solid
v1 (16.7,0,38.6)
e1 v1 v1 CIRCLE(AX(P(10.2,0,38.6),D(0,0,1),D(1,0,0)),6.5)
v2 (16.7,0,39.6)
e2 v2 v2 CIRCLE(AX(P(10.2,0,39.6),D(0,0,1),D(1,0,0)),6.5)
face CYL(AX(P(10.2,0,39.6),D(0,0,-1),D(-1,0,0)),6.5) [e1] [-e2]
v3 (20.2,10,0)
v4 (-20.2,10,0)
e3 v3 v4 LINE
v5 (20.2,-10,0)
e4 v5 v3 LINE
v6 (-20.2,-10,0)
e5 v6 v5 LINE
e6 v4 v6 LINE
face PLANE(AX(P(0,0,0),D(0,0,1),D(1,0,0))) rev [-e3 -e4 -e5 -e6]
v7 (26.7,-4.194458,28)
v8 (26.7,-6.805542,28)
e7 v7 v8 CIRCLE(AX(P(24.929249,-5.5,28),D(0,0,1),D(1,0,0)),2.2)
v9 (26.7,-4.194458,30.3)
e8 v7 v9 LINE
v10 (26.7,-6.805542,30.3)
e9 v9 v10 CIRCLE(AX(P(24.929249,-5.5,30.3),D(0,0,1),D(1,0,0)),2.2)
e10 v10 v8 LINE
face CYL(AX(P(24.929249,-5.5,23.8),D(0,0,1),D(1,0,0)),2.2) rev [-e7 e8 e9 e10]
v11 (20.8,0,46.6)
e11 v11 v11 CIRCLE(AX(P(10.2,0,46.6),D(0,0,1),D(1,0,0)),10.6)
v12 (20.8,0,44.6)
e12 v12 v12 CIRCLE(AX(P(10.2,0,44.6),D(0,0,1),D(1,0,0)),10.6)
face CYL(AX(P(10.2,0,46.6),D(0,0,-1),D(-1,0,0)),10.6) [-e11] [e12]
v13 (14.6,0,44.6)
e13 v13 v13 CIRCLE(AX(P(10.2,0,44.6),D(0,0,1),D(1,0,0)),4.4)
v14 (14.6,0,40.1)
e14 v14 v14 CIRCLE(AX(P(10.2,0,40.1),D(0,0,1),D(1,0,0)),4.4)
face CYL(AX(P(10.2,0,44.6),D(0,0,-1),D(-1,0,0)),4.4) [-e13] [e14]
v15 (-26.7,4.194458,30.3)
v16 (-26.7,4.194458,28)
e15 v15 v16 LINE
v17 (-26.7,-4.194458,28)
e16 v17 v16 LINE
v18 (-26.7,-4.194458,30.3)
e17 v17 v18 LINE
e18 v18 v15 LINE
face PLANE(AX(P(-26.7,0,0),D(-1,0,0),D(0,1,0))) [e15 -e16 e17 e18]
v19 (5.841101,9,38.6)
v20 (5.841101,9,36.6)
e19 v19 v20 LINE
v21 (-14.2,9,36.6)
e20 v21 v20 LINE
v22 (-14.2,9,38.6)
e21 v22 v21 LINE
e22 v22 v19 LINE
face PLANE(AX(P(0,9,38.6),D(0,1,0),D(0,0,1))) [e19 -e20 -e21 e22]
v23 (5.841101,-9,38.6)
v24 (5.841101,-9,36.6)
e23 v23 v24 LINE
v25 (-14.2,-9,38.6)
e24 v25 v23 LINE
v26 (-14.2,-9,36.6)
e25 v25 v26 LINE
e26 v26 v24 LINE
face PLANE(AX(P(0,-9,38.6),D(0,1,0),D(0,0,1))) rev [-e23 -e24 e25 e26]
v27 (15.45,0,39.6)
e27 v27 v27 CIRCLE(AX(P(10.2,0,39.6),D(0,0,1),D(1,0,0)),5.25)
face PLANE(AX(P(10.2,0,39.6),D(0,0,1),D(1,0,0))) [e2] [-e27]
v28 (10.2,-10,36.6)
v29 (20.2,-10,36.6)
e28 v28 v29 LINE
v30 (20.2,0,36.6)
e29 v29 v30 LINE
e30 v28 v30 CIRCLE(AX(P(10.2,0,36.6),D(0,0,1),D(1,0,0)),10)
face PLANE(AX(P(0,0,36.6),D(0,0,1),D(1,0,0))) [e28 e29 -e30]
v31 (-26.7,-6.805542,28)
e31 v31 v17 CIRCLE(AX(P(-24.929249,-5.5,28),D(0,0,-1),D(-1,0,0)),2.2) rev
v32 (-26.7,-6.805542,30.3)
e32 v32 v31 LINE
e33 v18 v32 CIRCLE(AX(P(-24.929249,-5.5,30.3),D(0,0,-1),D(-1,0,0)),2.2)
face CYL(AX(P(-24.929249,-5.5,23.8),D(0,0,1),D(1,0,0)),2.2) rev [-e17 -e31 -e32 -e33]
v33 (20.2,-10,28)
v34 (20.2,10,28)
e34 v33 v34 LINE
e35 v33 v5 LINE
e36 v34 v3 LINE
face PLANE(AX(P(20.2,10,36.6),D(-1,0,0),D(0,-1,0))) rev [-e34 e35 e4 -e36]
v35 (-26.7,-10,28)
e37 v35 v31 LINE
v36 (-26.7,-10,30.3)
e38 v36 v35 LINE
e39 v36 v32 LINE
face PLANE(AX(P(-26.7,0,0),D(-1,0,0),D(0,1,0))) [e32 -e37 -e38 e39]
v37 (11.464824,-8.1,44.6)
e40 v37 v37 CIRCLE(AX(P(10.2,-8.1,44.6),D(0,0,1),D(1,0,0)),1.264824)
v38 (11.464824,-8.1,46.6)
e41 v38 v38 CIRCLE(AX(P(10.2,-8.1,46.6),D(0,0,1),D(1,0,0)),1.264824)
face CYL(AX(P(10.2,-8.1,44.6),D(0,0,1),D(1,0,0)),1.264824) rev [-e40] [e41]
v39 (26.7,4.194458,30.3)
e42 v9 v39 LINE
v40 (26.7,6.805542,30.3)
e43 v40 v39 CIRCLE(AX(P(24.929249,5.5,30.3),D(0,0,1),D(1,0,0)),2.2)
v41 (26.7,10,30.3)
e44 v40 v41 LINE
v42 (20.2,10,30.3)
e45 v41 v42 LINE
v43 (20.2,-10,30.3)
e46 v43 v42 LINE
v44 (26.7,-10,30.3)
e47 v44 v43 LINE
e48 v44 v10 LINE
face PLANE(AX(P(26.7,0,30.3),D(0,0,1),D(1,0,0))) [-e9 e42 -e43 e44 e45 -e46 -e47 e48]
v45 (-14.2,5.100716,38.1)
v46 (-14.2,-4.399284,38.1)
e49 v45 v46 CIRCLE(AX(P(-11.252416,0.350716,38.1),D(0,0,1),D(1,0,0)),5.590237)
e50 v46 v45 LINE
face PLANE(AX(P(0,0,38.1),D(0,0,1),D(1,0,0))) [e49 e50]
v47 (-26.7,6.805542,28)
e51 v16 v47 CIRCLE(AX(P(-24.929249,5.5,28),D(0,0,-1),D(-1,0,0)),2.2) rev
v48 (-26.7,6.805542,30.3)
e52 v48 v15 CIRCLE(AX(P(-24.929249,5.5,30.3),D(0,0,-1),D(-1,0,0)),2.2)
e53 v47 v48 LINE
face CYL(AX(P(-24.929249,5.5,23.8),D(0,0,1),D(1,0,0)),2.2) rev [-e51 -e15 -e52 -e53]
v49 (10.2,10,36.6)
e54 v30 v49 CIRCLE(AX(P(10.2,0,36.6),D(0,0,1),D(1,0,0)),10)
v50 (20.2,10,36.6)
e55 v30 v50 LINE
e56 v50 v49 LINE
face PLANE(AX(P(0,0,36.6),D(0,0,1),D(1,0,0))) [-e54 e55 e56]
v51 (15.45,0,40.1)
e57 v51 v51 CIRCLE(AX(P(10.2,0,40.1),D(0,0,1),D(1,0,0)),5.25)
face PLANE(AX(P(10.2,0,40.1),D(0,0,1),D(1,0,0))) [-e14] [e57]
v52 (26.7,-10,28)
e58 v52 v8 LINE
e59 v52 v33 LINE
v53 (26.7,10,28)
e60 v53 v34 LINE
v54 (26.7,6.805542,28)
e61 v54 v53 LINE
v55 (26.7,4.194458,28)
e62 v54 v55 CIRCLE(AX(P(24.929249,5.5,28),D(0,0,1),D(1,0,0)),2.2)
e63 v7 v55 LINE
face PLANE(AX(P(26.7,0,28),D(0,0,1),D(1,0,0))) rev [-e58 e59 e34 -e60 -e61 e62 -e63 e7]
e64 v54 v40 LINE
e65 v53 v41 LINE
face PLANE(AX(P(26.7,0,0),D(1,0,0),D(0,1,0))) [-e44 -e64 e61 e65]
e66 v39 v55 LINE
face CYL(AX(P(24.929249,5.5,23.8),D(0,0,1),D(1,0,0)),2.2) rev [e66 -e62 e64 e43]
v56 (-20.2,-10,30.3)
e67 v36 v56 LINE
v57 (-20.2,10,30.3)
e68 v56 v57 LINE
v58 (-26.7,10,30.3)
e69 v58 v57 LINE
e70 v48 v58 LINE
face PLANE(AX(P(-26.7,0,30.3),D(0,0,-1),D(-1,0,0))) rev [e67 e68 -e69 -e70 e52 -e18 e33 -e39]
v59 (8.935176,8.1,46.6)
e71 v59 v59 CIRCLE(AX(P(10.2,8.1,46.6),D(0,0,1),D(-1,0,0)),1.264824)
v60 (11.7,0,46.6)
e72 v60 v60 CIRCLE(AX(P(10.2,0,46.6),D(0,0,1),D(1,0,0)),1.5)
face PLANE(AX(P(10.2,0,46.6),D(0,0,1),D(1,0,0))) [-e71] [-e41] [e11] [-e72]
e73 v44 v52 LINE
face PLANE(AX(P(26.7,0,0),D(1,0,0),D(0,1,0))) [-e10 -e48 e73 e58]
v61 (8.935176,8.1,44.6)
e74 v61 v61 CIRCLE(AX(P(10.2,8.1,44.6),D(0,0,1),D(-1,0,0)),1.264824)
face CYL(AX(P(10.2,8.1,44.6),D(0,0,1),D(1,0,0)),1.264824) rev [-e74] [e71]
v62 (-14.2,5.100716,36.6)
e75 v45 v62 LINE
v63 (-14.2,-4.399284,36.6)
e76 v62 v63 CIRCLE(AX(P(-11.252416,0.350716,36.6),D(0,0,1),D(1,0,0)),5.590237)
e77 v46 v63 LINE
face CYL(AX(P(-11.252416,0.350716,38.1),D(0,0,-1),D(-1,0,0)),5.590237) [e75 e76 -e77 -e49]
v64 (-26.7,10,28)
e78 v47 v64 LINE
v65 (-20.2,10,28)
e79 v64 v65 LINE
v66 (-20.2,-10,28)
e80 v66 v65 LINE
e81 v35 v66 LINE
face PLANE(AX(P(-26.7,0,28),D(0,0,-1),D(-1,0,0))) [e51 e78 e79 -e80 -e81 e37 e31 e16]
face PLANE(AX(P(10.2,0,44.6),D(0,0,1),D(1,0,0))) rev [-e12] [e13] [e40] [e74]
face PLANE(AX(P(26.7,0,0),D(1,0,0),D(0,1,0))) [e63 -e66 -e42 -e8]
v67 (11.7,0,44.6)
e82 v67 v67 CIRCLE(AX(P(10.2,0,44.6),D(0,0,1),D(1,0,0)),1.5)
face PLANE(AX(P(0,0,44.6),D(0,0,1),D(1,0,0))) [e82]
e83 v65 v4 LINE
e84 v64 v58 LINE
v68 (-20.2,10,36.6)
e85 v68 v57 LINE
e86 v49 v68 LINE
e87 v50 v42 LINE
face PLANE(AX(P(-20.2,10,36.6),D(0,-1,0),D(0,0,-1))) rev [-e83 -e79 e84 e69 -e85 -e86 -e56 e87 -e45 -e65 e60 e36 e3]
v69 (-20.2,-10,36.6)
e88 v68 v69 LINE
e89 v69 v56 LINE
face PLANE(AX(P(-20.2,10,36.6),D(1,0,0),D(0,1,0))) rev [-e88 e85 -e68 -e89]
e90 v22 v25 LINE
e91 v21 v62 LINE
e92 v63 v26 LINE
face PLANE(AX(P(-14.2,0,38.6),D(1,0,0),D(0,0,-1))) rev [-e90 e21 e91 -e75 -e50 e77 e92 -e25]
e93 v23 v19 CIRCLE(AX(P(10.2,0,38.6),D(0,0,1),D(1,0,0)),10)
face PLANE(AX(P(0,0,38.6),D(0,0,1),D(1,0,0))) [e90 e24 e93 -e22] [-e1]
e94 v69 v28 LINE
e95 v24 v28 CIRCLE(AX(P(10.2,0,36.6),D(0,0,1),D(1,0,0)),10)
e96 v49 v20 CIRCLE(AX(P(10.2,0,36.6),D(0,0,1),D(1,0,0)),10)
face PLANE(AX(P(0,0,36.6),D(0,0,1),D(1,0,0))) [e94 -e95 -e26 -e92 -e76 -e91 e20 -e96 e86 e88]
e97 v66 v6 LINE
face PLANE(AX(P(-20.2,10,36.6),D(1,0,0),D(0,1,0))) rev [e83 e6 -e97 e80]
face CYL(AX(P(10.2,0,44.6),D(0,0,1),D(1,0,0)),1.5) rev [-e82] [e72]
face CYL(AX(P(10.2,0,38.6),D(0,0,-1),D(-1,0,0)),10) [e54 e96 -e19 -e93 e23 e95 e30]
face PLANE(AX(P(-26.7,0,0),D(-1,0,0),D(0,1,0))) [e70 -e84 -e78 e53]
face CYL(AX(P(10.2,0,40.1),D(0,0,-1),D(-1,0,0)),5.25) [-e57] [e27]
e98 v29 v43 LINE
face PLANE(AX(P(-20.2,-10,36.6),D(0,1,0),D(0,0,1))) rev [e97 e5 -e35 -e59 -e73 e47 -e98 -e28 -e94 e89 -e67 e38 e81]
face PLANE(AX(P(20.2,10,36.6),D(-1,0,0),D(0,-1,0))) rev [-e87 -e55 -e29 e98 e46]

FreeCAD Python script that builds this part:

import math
import FreeCAD as App
import Part
import Sketcher
Q = App.Units.Quantity


def add_polygon(sketch, points):
    """Adds a closed chain of lines whose ends are joined by coincident constraints."""
    first, n = sketch.GeometryCount, len(points)
    for a, b in zip(points, points[1:] + points[:1]):
        sketch.addGeometry(Part.LineSegment(App.Vector(*a, 0), App.Vector(*b, 0)), False)
    for i in range(n):
        sketch.addConstraint(Sketcher.Constraint("Coincident", first + i, 2, first + (i + 1) % n, 1))

doc = App.newDocument("Part")
body = doc.addObject("PartDesign::Body", "Body")

# Sketch on XY plane
sketch1 = doc.addObject("Sketcher::SketchObject", "Sketch")
body.addObject(sketch1)
sketch1.AttachmentSupport = (doc.XY_Plane, [""])
sketch1.MapMode = "FlatFace"
add_polygon(sketch1, [(-20, 10), (-20, -10), (20, -10), (20, 10)])  # lines 0-3
sketch1.addConstraint([
    Sketcher.Constraint("Vertical", 0),
    Sketcher.Constraint("Horizontal", 1),
    Sketcher.Constraint("Vertical", 2),
    Sketcher.Constraint("Horizontal", 3),
    Sketcher.Constraint("Symmetric", 0, 2, 2, 2, -1, 1),
    Sketcher.Constraint("DistanceY", 0, 2, 0, 1, Q("20 mm")),
    Sketcher.Constraint("DistanceX", 1, 1, 1, 2, Q("40.4 mm")),
])
pad1 = doc.addObject("PartDesign::Pad", "Pad")
body.addObject(pad1)
pad1.Profile = sketch1
pad1.Length = 36.6

# Sketch on YZ plane
sketch2 = doc.addObject("Sketcher::SketchObject", "Sketch001")
body.addObject(sketch2)
sketch2.AttachmentSupport = (doc.YZ_Plane, [""])
sketch2.MapMode = "FlatFace"
sketch2.AttachmentOffset = App.Placement(App.Vector(0, 0, 20.2), App.Rotation())
add_polygon(sketch2, [(10, 30.3), (-10, 30.3), (-10, 28), (10, 28)])  # lines 0-3
sketch2.addConstraint([
    Sketcher.Constraint("Horizontal", 0),
    Sketcher.Constraint("Vertical", 1),
    Sketcher.Constraint("Horizontal", 2),
    Sketcher.Constraint("Vertical", 3),
    Sketcher.Constraint("DistanceX", 0, 2, 0, 1, Q("20 mm")),
    Sketcher.Constraint("DistanceY", 1, 2, 1, 1, Q("2.3 mm")),
    Sketcher.Constraint("DistanceX", 0, 2, -1, 1, Q("10 mm")),
    Sketcher.Constraint("DistanceY", -1, 1, 1, 2, Q("28 mm")),
])
pad2 = doc.addObject("PartDesign::Pad", "Pad001")
body.addObject(pad2)
pad2.Profile = sketch2
pad2.Length = 6.5

# Sketch on XY plane
sketch3 = doc.addObject("Sketcher::SketchObject", "Sketch002")
body.addObject(sketch3)
sketch3.AttachmentSupport = (doc.XY_Plane, [""])
sketch3.MapMode = "FlatFace"
sketch3.AttachmentOffset = App.Placement(App.Vector(0, 0, 30.3), App.Rotation())
sketch3.addGeometry([
    Part.Circle(App.Vector(24.9, -5.5, 0), App.Vector(0, 0, 1), 2.2),
    Part.Circle(App.Vector(24.9, 5.5, 0), App.Vector(0, 0, 1), 2.2),
], False)
sketch3.addConstraint([
    Sketcher.Constraint("Equal", 0, 1),
    Sketcher.Constraint("Symmetric", 0, 3, 1, 3, -1),
    Sketcher.Constraint("Diameter", 0, Q("4.4 mm")),
    Sketcher.Constraint("DistanceY", 0, 3, 1, 3, Q("11 mm")),
    Sketcher.Constraint("DistanceX", -1, 1, 0, 3, Q("24.929249 mm")),
])
pocket1 = doc.addObject("PartDesign::Pocket", "Pocket")
body.addObject(pocket1)
pocket1.Profile = sketch3
pocket1.Length = 6.5
doc.recompute()

mirrored = doc.addObject("PartDesign::Mirrored", "Mirrored")
body.addObject(mirrored)
mirrored.Originals = [pad2, pocket1]
mirrored.MirrorPlane = (doc.YZ_Plane, [""])
body.Tip = mirrored

# Sketch on XY plane
sketch4 = doc.addObject("Sketcher::SketchObject", "Sketch003")
body.addObject(sketch4)
sketch4.AttachmentSupport = (doc.XY_Plane, [""])
sketch4.MapMode = "FlatFace"
sketch4.AttachmentOffset = App.Placement(App.Vector(0, 0, 36.6), App.Rotation())
sketch4.addGeometry([
    Part.LineSegment(App.Vector(-14, 9, 0), App.Vector(-14, -9, 0)),  # 0
    Part.LineSegment(App.Vector(-14, -9, 0), App.Vector(6, -9, 0)),  # 1
    Part.ArcOfCircle(Part.Circle(App.Vector(10, 0, 0), App.Vector(0, 0, 1), 10), math.radians(-116), math.radians(0)),  # 2
    Part.ArcOfCircle(Part.Circle(App.Vector(10, 0, 0), App.Vector(0, 0, 1), 10), math.radians(0), math.radians(116)),  # 3
    Part.LineSegment(App.Vector(6, 9, 0), App.Vector(-14, 9, 0)),  # 4
], False)
sketch4.addConstraint([
    Sketcher.Constraint("Coincident", 0, 2, 1, 1),
    Sketcher.Constraint("Coincident", 1, 2, 2, 1),
    Sketcher.Constraint("Tangent", 2, 2, 3, 1),
    Sketcher.Constraint("Coincident", 3, 2, 4, 1),
    Sketcher.Constraint("Coincident", 4, 2, 0, 1),
    Sketcher.Constraint("Vertical", 0),
    Sketcher.Constraint("Horizontal", 1),
    Sketcher.Constraint("Horizontal", 4),
    Sketcher.Constraint("Equal", 2, 3),
    Sketcher.Constraint("Symmetric", 1, 2, 3, 2, -1),
    Sketcher.Constraint("PointOnObject", 2, 2, -1),
    Sketcher.Constraint("Radius", 2, Q("10 mm")),
    Sketcher.Constraint("DistanceY", 0, 2, 0, 1, Q("18 mm")),
    Sketcher.Constraint("DistanceX", -1, 1, 2, 3, Q("10.2 mm")),
    Sketcher.Constraint("DistanceX", 0, 2, -1, 1, Q("14.2 mm")),
])
pad3 = doc.addObject("PartDesign::Pad", "Pad002")
body.addObject(pad3)
pad3.Profile = sketch4
pad3.Length = 2

# Sketch on XY plane
sketch5 = doc.addObject("Sketcher::SketchObject", "Sketch004")
body.addObject(sketch5)
sketch5.AttachmentSupport = (doc.XY_Plane, [""])
sketch5.MapMode = "FlatFace"
sketch5.AttachmentOffset = App.Placement(App.Vector(0, 0, 36.6), App.Rotation())
sketch5.addGeometry([
    Part.LineSegment(App.Vector(-14, -4, 0), App.Vector(-14, 5, 0)),
    Part.ArcOfCircle(Part.Circle(App.Vector(-11, 0, 0), App.Vector(0, 0, 1), 6), math.radians(122), math.radians(238)),
], False)
sketch5.addConstraint([
    Sketcher.Constraint("Coincident", 0, 1, 1, 2),
    Sketcher.Constraint("Coincident", 1, 1, 0, 2),
    Sketcher.Constraint("Vertical", 0),
    Sketcher.Constraint("DistanceY", 0, 1, 0, 2, Q("9.5 mm")),
    Sketcher.Constraint("DistanceX", 0, 1, -1, 1, Q("14.2 mm")),
    Sketcher.Constraint("Radius", 1, Q("5.590237 mm")),
    Sketcher.Constraint("DistanceY", -1, 1, 1, 3, Q("0.350716 mm")),
])
pad4 = doc.addObject("PartDesign::Pad", "Pad003")
body.addObject(pad4)
pad4.Profile = sketch5
pad4.Length = 1.5

# Sketch on XY plane
sketch6 = doc.addObject("Sketcher::SketchObject", "Sketch005")
body.addObject(sketch6)
sketch6.AttachmentSupport = (doc.XY_Plane, [""])
sketch6.MapMode = "FlatFace"
sketch6.AttachmentOffset = App.Placement(App.Vector(0, 0, 38.6), App.Rotation())
sketch6.addGeometry(Part.Circle(App.Vector(10, 0, 0), App.Vector(0, 0, 1), 6), False)
sketch6.addConstraint([
    Sketcher.Constraint("PointOnObject", 0, 3, -1),
    Sketcher.Constraint("Diameter", 0, Q("13 mm")),
    Sketcher.Constraint("DistanceX", -1, 1, 0, 3, Q("10.2 mm")),
])
pad5 = doc.addObject("PartDesign::Pad", "Pad004")
body.addObject(pad5)
pad5.Profile = sketch6
pad5.Length = 1

# Sketch on XY plane
sketch7 = doc.addObject("Sketcher::SketchObject", "Sketch006")
body.addObject(sketch7)
sketch7.AttachmentSupport = (doc.XY_Plane, [""])
sketch7.MapMode = "FlatFace"
sketch7.AttachmentOffset = App.Placement(App.Vector(0, 0, 39.6), App.Rotation())
sketch7.addGeometry(Part.Circle(App.Vector(10, 0, 0), App.Vector(0, 0, 1), 5), False)
sketch7.addConstraint([
    Sketcher.Constraint("PointOnObject", 0, 3, -1),
    Sketcher.Constraint("Diameter", 0, Q("10.5 mm")),
    Sketcher.Constraint("DistanceX", -1, 1, 0, 3, Q("10.2 mm")),
])
pad6 = doc.addObject("PartDesign::Pad", "Pad005")
body.addObject(pad6)
pad6.Profile = sketch7
pad6.Length = 0.5

# Sketch on XY plane
sketch8 = doc.addObject("Sketcher::SketchObject", "Sketch007")
body.addObject(sketch8)
sketch8.AttachmentSupport = (doc.XY_Plane, [""])
sketch8.MapMode = "FlatFace"
sketch8.AttachmentOffset = App.Placement(App.Vector(0, 0, 40.1), App.Rotation())
sketch8.addGeometry(Part.Circle(App.Vector(10.2, 0, 0), App.Vector(0, 0, 1), 4.4), False)
sketch8.addConstraint([
    Sketcher.Constraint("PointOnObject", 0, 3, -1),
    Sketcher.Constraint("Diameter", 0, Q("8.8 mm")),
    Sketcher.Constraint("DistanceX", -1, 1, 0, 3, Q("10.2 mm")),
])
pad7 = doc.addObject("PartDesign::Pad", "Pad006")
body.addObject(pad7)
pad7.Profile = sketch8
pad7.Length = 4.5

# Sketch on XY plane
sketch9 = doc.addObject("Sketcher::SketchObject", "Sketch008")
body.addObject(sketch9)
sketch9.AttachmentSupport = (doc.XY_Plane, [""])
sketch9.MapMode = "FlatFace"
sketch9.AttachmentOffset = App.Placement(App.Vector(0, 0, 44.6), App.Rotation())
sketch9.addGeometry(Part.Circle(App.Vector(10, 0, 0), App.Vector(0, 0, 1), 11), False)
sketch9.addConstraint([
    Sketcher.Constraint("PointOnObject", 0, 3, -1),
    Sketcher.Constraint("Diameter", 0, Q("21.2 mm")),
    Sketcher.Constraint("DistanceX", -1, 1, 0, 3, Q("10.2 mm")),
])
pad8 = doc.addObject("PartDesign::Pad", "Pad007")
body.addObject(pad8)
pad8.Profile = sketch9
pad8.Length = 2

# Sketch on XY plane
sketch10 = doc.addObject("Sketcher::SketchObject", "Sketch009")
body.addObject(sketch10)
sketch10.AttachmentSupport = (doc.XY_Plane, [""])
sketch10.MapMode = "FlatFace"
sketch10.AttachmentOffset = App.Placement(App.Vector(0, 0, 46.6), App.Rotation())
sketch10.addGeometry([
    Part.Circle(App.Vector(10.2, 0, 0), App.Vector(0, 0, 1), 1.5),
    Part.Circle(App.Vector(10.2, -8.1, 0), App.Vector(0, 0, 1), 1.3),
], False)
sketch10.addConstraint([
    Sketcher.Constraint("PointOnObject", 0, 3, -1),
    Sketcher.Constraint("Vertical", 0, 3, 1, 3),
    Sketcher.Constraint("Diameter", 0, Q("3 mm")),
    Sketcher.Constraint("DistanceX", -1, 1, 0, 3, Q("10.2 mm")),
    Sketcher.Constraint("DistanceY", 1, 3, -1, 1, Q("8.1 mm")),
    Sketcher.Constraint("Diameter", 1, Q("2.529647 mm")),
])
pocket2 = doc.addObject("PartDesign::Pocket", "Pocket001")
body.addObject(pocket2)
pocket2.Profile = sketch10
pocket2.Length = 2
doc.recompute()

datumline = doc.addObject("PartDesign::Line", "DatumLine")
body.addObject(datumline)
datumline.Placement = App.Placement(App.Vector(10.2, 0, 0), App.Rotation(App.Vector(0, 0, 1), App.Vector(0, 0, 1)))
polarpattern = doc.addObject("PartDesign::PolarPattern", "PolarPattern")
body.addObject(polarpattern)
polarpattern.Originals = [pocket2]
polarpattern.Axis = (datumline, [""])
polarpattern.Angle = 360
polarpattern.Occurrences = 2
body.Tip = polarpattern

doc.recompute()
